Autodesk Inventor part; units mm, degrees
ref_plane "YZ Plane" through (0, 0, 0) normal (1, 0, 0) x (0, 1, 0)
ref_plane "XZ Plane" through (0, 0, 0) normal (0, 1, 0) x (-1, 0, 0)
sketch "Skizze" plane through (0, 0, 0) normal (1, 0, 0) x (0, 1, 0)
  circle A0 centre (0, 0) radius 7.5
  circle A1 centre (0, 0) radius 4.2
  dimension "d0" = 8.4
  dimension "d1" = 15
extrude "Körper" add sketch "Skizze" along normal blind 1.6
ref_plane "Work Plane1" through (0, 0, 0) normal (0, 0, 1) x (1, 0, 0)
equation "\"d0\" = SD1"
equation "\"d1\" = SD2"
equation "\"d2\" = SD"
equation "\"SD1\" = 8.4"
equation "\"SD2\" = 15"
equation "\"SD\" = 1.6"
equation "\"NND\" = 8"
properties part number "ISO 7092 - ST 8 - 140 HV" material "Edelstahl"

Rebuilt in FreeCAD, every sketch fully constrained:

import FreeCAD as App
import Part
import Sketcher

V = App.Vector

doc = App.newDocument("Part")
body = doc.addObject("PartDesign::Body", "Body")

# Sketch on YZ plane
sketch1 = body.newObject("Sketcher::SketchObject", "Sketch")
sketch1.AttachmentSupport = (doc.getObject("YZ_Plane"), [""])
sketch1.MapMode = "FlatFace"
sketch1.addGeometry([
    Part.Circle(V(0, 0, 0), V(0, 0, 1), 7.5),
    Part.Circle(V(0, 0, 0), V(0, 0, 1), 4.2),
], False)
sketch1.addConstraint([
    Sketcher.Constraint("Coincident", 0, 3, -1, 1),
    Sketcher.Constraint("Coincident", 1, 3, -1, 1),
    Sketcher.Constraint("Diameter", 0, 15.0),
    Sketcher.Constraint("Diameter", 1, 8.4),
])
pad1 = body.newObject("PartDesign::Pad", "Pad")
pad1.Profile = sketch1
pad1.Length = 1.6

doc.recompute()
